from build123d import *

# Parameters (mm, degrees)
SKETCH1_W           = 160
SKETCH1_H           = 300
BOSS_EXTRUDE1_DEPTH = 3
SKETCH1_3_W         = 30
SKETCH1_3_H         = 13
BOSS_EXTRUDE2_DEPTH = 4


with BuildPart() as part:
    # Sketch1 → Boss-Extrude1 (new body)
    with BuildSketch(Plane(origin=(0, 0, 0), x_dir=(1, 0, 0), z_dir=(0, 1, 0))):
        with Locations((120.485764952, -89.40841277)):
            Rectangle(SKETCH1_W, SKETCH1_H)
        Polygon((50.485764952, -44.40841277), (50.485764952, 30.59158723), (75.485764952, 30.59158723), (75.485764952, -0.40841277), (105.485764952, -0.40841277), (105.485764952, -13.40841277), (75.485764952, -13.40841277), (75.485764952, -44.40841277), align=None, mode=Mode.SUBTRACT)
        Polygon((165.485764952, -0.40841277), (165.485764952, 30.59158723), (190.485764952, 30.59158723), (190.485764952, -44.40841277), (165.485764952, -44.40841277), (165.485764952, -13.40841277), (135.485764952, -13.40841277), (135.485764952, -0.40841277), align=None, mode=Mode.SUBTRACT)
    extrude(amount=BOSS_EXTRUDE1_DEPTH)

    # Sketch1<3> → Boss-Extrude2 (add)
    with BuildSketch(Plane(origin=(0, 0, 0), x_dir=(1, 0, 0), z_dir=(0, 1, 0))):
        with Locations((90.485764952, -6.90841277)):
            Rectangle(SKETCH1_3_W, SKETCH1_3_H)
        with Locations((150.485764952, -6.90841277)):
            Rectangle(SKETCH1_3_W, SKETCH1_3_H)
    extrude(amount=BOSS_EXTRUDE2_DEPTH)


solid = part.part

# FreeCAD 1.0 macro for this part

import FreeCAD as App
import Part
import Sketcher
from FreeCAD import Vector
Q = App.Units.Quantity

doc = App.newDocument("Part")
body = doc.addObject("PartDesign::Body", "Body")

sketch1 = body.newObject("Sketcher::SketchObject", "Sketch")
sketch1.AttachmentSupport = (doc.getObject("XZ_Plane"), [""])
sketch1.MapMode = "FlatFace"
sketch1.addGeometry(Part.LineSegment(Vector(40, -61, 0), Vector(40, 239, 0)), False)
sketch1.addGeometry(Part.LineSegment(Vector(40, 239, 0), Vector(200, 239, 0)), False)
sketch1.addGeometry(Part.LineSegment(Vector(200, 239, 0), Vector(200, -61, 0)), False)
sketch1.addGeometry(Part.LineSegment(Vector(200, -61, 0), Vector(40, -61, 0)), False)
sketch1.addGeometry(Part.LineSegment(Vector(75, 44, 0), Vector(50, 44, 0)), False)
sketch1.addGeometry(Part.LineSegment(Vector(50, 44, 0), Vector(50, -31, 0)), False)
sketch1.addGeometry(Part.LineSegment(Vector(50, -31, 0), Vector(75, -31, 0)), False)
sketch1.addGeometry(Part.LineSegment(Vector(75, -31, 0), Vector(75, 0, 0)), False)
sketch1.addGeometry(Part.LineSegment(Vector(75, 0, 0), Vector(105, 0, 0)), False)
sketch1.addGeometry(Part.LineSegment(Vector(105, 0, 0), Vector(105, 13, 0)), False)
sketch1.addGeometry(Part.LineSegment(Vector(105, 13, 0), Vector(75, 13, 0)), False)
sketch1.addGeometry(Part.LineSegment(Vector(75, 13, 0), Vector(75, 44, 0)), False)
sketch1.addGeometry(Part.LineSegment(Vector(135, 0, 0), Vector(165, 0, 0)), False)
sketch1.addGeometry(Part.LineSegment(Vector(165, 0, 0), Vector(165, -31, 0)), False)
sketch1.addGeometry(Part.LineSegment(Vector(165, -31, 0), Vector(190, -31, 0)), False)
sketch1.addGeometry(Part.LineSegment(Vector(190, -31, 0), Vector(190, 44, 0)), False)
sketch1.addGeometry(Part.LineSegment(Vector(190, 44, 0), Vector(165, 44, 0)), False)
sketch1.addGeometry(Part.LineSegment(Vector(165, 44, 0), Vector(165, 13, 0)), False)
sketch1.addGeometry(Part.LineSegment(Vector(165, 13, 0), Vector(135, 13, 0)), False)
sketch1.addGeometry(Part.LineSegment(Vector(135, 13, 0), Vector(135, 0, 0)), False)
sketch1.addConstraint(Sketcher.Constraint("Coincident", 0, 2, 1, 1))
sketch1.addConstraint(Sketcher.Constraint("Coincident", 1, 2, 2, 1))
sketch1.addConstraint(Sketcher.Constraint("Coincident", 2, 2, 3, 1))
sketch1.addConstraint(Sketcher.Constraint("Coincident", 3, 2, 0, 1))
sketch1.addConstraint(Sketcher.Constraint("Coincident", 4, 2, 5, 1))
sketch1.addConstraint(Sketcher.Constraint("Coincident", 5, 2, 6, 1))
sketch1.addConstraint(Sketcher.Constraint("Coincident", 6, 2, 7, 1))
sketch1.addConstraint(Sketcher.Constraint("Coincident", 7, 2, 8, 1))
sketch1.addConstraint(Sketcher.Constraint("Coincident", 8, 2, 9, 1))
sketch1.addConstraint(Sketcher.Constraint("Coincident", 9, 2, 10, 1))
sketch1.addConstraint(Sketcher.Constraint("Coincident", 10, 2, 11, 1))
sketch1.addConstraint(Sketcher.Constraint("Coincident", 11, 2, 4, 1))
sketch1.addConstraint(Sketcher.Constraint("Coincident", 12, 2, 13, 1))
sketch1.addConstraint(Sketcher.Constraint("Coincident", 13, 2, 14, 1))
sketch1.addConstraint(Sketcher.Constraint("Coincident", 14, 2, 15, 1))
sketch1.addConstraint(Sketcher.Constraint("Coincident", 15, 2, 16, 1))
sketch1.addConstraint(Sketcher.Constraint("Coincident", 16, 2, 17, 1))
sketch1.addConstraint(Sketcher.Constraint("Coincident", 17, 2, 18, 1))
sketch1.addConstraint(Sketcher.Constraint("Coincident", 18, 2, 19, 1))
sketch1.addConstraint(Sketcher.Constraint("Coincident", 19, 2, 12, 1))
sketch1.addConstraint(Sketcher.Constraint("Vertical", 0))
sketch1.addConstraint(Sketcher.Constraint("Horizontal", 1))
sketch1.addConstraint(Sketcher.Constraint("Vertical", 2))
sketch1.addConstraint(Sketcher.Constraint("Horizontal", 3))
sketch1.addConstraint(Sketcher.Constraint("Horizontal", 4))
sketch1.addConstraint(Sketcher.Constraint("Vertical", 5))
sketch1.addConstraint(Sketcher.Constraint("Horizontal", 6))
sketch1.addConstraint(Sketcher.Constraint("Vertical", 7))
sketch1.addConstraint(Sketcher.Constraint("Horizontal", 8))
sketch1.addConstraint(Sketcher.Constraint("Vertical", 9))
sketch1.addConstraint(Sketcher.Constraint("Horizontal", 10))
sketch1.addConstraint(Sketcher.Constraint("Vertical", 11))
sketch1.addConstraint(Sketcher.Constraint("Horizontal", 12))
sketch1.addConstraint(Sketcher.Constraint("Vertical", 13))
sketch1.addConstraint(Sketcher.Constraint("Horizontal", 14))
sketch1.addConstraint(Sketcher.Constraint("Vertical", 15))
sketch1.addConstraint(Sketcher.Constraint("Horizontal", 16))
sketch1.addConstraint(Sketcher.Constraint("Vertical", 17))
sketch1.addConstraint(Sketcher.Constraint("Horizontal", 18))
sketch1.addConstraint(Sketcher.Constraint("Vertical", 19))
sketch1.addConstraint(Sketcher.Constraint("Horizontal", 8, 2, 12, 2))
sketch1.addConstraint(Sketcher.Constraint("Horizontal", 6, 2, 13, 2))
sketch1.addConstraint(Sketcher.Constraint("Horizontal", 11, 2, 15, 2))
sketch1.addConstraint(Sketcher.Constraint("Horizontal", 10, 2, 17, 2))
sketch1.addConstraint(Sketcher.Constraint("Vertical", 7, 2, 10, 2))
sketch1.addConstraint(Sketcher.Constraint("Vertical", 13, 2, 16, 2))
sketch1.addConstraint(Sketcher.Constraint("Equal", 10, 12))
sketch1.addConstraint(Sketcher.Constraint("Equal", 6, 14))
sketch1.addConstraint(Sketcher.Constraint("Equal", 7, 11))
sketch1.addConstraint(Sketcher.Constraint("DistanceX", 1, 1, 1, 2, Q("160 mm")))
sketch1.addConstraint(Sketcher.Constraint("DistanceX", 4, 2, 4, 1, Q("25 mm")))
sketch1.addConstraint(Sketcher.Constraint("DistanceX", 8, 1, 8, 2, Q("30 mm")))
sketch1.addConstraint(Sketcher.Constraint("DistanceY", 0, 1, 0, 2, Q("300 mm")))
sketch1.addConstraint(Sketcher.Constraint("DistanceY", 5, 2, 5, 1, Q("75 mm")))
sketch1.addConstraint(Sketcher.Constraint("DistanceY", 7, 1, 7, 2, Q("31 mm")))
sketch1.addConstraint(Sketcher.Constraint("DistanceX", 3, 2, 4, 2, Q("10 mm")))
sketch1.addConstraint(Sketcher.Constraint("DistanceY", 3, 2, 4, 2, Q("105 mm")))
sketch1.addConstraint(Sketcher.Constraint("DistanceX", 8, 2, 12, 2, Q("60 mm")))
sketch1.addConstraint(Sketcher.Constraint("DistanceX", -1, 1, 0, 2, Q("40.485765 mm")))
sketch1.addConstraint(Sketcher.Constraint("DistanceY", -1, 1, 0, 2, Q("239.408413 mm")))
pad1 = body.newObject("PartDesign::Pad", "Pad")
pad1.Profile = sketch1
pad1.Length = 3
pad1.Reversed = True

sketch2 = body.newObject("Sketcher::SketchObject", "Sketch001")
sketch2.AttachmentSupport = (doc.getObject("XZ_Plane"), [""])
sketch2.MapMode = "FlatFace"
sketch2.addGeometry(Part.LineSegment(Vector(75, 0, 0), Vector(75, 13, 0)), False)
sketch2.addGeometry(Part.LineSegment(Vector(75, 13, 0), Vector(105, 13, 0)), False)
sketch2.addGeometry(Part.LineSegment(Vector(105, 13, 0), Vector(105, 0, 0)), False)
sketch2.addGeometry(Part.LineSegment(Vector(105, 0, 0), Vector(75, 0, 0)), False)
sketch2.addGeometry(Part.LineSegment(Vector(135, 0, 0), Vector(135, 13, 0)), False)
sketch2.addGeometry(Part.LineSegment(Vector(135, 13, 0), Vector(165, 13, 0)), False)
sketch2.addGeometry(Part.LineSegment(Vector(165, 13, 0), Vector(165, 0, 0)), False)
sketch2.addGeometry(Part.LineSegment(Vector(165, 0, 0), Vector(135, 0, 0)), False)
sketch2.addConstraint(Sketcher.Constraint("Coincident", 0, 2, 1, 1))
sketch2.addConstraint(Sketcher.Constraint("Coincident", 1, 2, 2, 1))
sketch2.addConstraint(Sketcher.Constraint("Coincident", 2, 2, 3, 1))
sketch2.addConstraint(Sketcher.Constraint("Coincident", 3, 2, 0, 1))
sketch2.addConstraint(Sketcher.Constraint("Coincident", 4, 2, 5, 1))
sketch2.addConstraint(Sketcher.Constraint("Coincident", 5, 2, 6, 1))
sketch2.addConstraint(Sketcher.Constraint("Coincident", 6, 2, 7, 1))
sketch2.addConstraint(Sketcher.Constraint("Coincident", 7, 2, 4, 1))
sketch2.addConstraint(Sketcher.Constraint("Vertical", 0))
sketch2.addConstraint(Sketcher.Constraint("Horizontal", 1))
sketch2.addConstraint(Sketcher.Constraint("Vertical", 2))
sketch2.addConstraint(Sketcher.Constraint("Horizontal", 3))
sketch2.addConstraint(Sketcher.Constraint("Vertical", 4))
sketch2.addConstraint(Sketcher.Constraint("Horizontal", 5))
sketch2.addConstraint(Sketcher.Constraint("Vertical", 6))
sketch2.addConstraint(Sketcher.Constraint("Horizontal", 7))
sketch2.addConstraint(Sketcher.Constraint("Horizontal", 1, 2, 4, 2))
sketch2.addConstraint(Sketcher.Constraint("Horizontal", 3, 2, 6, 2))
sketch2.addConstraint(Sketcher.Constraint("Equal", 3, 5))
sketch2.addConstraint(Sketcher.Constraint("DistanceX", 1, 1, 1, 2, Q("30 mm")))
sketch2.addConstraint(Sketcher.Constraint("DistanceY", 0, 1, 0, 2, Q("13 mm")))
sketch2.addConstraint(Sketcher.Constraint("DistanceX", 1, 2, 4, 2, Q("30 mm")))
sketch2.addConstraint(Sketcher.Constraint("DistanceX", -1, 1, 0, 2, Q("75.485765 mm")))
sketch2.addConstraint(Sketcher.Constraint("DistanceY", -1, 1, 0, 2, Q("13.408413 mm")))
pad2 = body.newObject("PartDesign::Pad", "Pad001")
pad2.Profile = sketch2
pad2.Length = 4
pad2.Reversed = True

doc.recompute()
